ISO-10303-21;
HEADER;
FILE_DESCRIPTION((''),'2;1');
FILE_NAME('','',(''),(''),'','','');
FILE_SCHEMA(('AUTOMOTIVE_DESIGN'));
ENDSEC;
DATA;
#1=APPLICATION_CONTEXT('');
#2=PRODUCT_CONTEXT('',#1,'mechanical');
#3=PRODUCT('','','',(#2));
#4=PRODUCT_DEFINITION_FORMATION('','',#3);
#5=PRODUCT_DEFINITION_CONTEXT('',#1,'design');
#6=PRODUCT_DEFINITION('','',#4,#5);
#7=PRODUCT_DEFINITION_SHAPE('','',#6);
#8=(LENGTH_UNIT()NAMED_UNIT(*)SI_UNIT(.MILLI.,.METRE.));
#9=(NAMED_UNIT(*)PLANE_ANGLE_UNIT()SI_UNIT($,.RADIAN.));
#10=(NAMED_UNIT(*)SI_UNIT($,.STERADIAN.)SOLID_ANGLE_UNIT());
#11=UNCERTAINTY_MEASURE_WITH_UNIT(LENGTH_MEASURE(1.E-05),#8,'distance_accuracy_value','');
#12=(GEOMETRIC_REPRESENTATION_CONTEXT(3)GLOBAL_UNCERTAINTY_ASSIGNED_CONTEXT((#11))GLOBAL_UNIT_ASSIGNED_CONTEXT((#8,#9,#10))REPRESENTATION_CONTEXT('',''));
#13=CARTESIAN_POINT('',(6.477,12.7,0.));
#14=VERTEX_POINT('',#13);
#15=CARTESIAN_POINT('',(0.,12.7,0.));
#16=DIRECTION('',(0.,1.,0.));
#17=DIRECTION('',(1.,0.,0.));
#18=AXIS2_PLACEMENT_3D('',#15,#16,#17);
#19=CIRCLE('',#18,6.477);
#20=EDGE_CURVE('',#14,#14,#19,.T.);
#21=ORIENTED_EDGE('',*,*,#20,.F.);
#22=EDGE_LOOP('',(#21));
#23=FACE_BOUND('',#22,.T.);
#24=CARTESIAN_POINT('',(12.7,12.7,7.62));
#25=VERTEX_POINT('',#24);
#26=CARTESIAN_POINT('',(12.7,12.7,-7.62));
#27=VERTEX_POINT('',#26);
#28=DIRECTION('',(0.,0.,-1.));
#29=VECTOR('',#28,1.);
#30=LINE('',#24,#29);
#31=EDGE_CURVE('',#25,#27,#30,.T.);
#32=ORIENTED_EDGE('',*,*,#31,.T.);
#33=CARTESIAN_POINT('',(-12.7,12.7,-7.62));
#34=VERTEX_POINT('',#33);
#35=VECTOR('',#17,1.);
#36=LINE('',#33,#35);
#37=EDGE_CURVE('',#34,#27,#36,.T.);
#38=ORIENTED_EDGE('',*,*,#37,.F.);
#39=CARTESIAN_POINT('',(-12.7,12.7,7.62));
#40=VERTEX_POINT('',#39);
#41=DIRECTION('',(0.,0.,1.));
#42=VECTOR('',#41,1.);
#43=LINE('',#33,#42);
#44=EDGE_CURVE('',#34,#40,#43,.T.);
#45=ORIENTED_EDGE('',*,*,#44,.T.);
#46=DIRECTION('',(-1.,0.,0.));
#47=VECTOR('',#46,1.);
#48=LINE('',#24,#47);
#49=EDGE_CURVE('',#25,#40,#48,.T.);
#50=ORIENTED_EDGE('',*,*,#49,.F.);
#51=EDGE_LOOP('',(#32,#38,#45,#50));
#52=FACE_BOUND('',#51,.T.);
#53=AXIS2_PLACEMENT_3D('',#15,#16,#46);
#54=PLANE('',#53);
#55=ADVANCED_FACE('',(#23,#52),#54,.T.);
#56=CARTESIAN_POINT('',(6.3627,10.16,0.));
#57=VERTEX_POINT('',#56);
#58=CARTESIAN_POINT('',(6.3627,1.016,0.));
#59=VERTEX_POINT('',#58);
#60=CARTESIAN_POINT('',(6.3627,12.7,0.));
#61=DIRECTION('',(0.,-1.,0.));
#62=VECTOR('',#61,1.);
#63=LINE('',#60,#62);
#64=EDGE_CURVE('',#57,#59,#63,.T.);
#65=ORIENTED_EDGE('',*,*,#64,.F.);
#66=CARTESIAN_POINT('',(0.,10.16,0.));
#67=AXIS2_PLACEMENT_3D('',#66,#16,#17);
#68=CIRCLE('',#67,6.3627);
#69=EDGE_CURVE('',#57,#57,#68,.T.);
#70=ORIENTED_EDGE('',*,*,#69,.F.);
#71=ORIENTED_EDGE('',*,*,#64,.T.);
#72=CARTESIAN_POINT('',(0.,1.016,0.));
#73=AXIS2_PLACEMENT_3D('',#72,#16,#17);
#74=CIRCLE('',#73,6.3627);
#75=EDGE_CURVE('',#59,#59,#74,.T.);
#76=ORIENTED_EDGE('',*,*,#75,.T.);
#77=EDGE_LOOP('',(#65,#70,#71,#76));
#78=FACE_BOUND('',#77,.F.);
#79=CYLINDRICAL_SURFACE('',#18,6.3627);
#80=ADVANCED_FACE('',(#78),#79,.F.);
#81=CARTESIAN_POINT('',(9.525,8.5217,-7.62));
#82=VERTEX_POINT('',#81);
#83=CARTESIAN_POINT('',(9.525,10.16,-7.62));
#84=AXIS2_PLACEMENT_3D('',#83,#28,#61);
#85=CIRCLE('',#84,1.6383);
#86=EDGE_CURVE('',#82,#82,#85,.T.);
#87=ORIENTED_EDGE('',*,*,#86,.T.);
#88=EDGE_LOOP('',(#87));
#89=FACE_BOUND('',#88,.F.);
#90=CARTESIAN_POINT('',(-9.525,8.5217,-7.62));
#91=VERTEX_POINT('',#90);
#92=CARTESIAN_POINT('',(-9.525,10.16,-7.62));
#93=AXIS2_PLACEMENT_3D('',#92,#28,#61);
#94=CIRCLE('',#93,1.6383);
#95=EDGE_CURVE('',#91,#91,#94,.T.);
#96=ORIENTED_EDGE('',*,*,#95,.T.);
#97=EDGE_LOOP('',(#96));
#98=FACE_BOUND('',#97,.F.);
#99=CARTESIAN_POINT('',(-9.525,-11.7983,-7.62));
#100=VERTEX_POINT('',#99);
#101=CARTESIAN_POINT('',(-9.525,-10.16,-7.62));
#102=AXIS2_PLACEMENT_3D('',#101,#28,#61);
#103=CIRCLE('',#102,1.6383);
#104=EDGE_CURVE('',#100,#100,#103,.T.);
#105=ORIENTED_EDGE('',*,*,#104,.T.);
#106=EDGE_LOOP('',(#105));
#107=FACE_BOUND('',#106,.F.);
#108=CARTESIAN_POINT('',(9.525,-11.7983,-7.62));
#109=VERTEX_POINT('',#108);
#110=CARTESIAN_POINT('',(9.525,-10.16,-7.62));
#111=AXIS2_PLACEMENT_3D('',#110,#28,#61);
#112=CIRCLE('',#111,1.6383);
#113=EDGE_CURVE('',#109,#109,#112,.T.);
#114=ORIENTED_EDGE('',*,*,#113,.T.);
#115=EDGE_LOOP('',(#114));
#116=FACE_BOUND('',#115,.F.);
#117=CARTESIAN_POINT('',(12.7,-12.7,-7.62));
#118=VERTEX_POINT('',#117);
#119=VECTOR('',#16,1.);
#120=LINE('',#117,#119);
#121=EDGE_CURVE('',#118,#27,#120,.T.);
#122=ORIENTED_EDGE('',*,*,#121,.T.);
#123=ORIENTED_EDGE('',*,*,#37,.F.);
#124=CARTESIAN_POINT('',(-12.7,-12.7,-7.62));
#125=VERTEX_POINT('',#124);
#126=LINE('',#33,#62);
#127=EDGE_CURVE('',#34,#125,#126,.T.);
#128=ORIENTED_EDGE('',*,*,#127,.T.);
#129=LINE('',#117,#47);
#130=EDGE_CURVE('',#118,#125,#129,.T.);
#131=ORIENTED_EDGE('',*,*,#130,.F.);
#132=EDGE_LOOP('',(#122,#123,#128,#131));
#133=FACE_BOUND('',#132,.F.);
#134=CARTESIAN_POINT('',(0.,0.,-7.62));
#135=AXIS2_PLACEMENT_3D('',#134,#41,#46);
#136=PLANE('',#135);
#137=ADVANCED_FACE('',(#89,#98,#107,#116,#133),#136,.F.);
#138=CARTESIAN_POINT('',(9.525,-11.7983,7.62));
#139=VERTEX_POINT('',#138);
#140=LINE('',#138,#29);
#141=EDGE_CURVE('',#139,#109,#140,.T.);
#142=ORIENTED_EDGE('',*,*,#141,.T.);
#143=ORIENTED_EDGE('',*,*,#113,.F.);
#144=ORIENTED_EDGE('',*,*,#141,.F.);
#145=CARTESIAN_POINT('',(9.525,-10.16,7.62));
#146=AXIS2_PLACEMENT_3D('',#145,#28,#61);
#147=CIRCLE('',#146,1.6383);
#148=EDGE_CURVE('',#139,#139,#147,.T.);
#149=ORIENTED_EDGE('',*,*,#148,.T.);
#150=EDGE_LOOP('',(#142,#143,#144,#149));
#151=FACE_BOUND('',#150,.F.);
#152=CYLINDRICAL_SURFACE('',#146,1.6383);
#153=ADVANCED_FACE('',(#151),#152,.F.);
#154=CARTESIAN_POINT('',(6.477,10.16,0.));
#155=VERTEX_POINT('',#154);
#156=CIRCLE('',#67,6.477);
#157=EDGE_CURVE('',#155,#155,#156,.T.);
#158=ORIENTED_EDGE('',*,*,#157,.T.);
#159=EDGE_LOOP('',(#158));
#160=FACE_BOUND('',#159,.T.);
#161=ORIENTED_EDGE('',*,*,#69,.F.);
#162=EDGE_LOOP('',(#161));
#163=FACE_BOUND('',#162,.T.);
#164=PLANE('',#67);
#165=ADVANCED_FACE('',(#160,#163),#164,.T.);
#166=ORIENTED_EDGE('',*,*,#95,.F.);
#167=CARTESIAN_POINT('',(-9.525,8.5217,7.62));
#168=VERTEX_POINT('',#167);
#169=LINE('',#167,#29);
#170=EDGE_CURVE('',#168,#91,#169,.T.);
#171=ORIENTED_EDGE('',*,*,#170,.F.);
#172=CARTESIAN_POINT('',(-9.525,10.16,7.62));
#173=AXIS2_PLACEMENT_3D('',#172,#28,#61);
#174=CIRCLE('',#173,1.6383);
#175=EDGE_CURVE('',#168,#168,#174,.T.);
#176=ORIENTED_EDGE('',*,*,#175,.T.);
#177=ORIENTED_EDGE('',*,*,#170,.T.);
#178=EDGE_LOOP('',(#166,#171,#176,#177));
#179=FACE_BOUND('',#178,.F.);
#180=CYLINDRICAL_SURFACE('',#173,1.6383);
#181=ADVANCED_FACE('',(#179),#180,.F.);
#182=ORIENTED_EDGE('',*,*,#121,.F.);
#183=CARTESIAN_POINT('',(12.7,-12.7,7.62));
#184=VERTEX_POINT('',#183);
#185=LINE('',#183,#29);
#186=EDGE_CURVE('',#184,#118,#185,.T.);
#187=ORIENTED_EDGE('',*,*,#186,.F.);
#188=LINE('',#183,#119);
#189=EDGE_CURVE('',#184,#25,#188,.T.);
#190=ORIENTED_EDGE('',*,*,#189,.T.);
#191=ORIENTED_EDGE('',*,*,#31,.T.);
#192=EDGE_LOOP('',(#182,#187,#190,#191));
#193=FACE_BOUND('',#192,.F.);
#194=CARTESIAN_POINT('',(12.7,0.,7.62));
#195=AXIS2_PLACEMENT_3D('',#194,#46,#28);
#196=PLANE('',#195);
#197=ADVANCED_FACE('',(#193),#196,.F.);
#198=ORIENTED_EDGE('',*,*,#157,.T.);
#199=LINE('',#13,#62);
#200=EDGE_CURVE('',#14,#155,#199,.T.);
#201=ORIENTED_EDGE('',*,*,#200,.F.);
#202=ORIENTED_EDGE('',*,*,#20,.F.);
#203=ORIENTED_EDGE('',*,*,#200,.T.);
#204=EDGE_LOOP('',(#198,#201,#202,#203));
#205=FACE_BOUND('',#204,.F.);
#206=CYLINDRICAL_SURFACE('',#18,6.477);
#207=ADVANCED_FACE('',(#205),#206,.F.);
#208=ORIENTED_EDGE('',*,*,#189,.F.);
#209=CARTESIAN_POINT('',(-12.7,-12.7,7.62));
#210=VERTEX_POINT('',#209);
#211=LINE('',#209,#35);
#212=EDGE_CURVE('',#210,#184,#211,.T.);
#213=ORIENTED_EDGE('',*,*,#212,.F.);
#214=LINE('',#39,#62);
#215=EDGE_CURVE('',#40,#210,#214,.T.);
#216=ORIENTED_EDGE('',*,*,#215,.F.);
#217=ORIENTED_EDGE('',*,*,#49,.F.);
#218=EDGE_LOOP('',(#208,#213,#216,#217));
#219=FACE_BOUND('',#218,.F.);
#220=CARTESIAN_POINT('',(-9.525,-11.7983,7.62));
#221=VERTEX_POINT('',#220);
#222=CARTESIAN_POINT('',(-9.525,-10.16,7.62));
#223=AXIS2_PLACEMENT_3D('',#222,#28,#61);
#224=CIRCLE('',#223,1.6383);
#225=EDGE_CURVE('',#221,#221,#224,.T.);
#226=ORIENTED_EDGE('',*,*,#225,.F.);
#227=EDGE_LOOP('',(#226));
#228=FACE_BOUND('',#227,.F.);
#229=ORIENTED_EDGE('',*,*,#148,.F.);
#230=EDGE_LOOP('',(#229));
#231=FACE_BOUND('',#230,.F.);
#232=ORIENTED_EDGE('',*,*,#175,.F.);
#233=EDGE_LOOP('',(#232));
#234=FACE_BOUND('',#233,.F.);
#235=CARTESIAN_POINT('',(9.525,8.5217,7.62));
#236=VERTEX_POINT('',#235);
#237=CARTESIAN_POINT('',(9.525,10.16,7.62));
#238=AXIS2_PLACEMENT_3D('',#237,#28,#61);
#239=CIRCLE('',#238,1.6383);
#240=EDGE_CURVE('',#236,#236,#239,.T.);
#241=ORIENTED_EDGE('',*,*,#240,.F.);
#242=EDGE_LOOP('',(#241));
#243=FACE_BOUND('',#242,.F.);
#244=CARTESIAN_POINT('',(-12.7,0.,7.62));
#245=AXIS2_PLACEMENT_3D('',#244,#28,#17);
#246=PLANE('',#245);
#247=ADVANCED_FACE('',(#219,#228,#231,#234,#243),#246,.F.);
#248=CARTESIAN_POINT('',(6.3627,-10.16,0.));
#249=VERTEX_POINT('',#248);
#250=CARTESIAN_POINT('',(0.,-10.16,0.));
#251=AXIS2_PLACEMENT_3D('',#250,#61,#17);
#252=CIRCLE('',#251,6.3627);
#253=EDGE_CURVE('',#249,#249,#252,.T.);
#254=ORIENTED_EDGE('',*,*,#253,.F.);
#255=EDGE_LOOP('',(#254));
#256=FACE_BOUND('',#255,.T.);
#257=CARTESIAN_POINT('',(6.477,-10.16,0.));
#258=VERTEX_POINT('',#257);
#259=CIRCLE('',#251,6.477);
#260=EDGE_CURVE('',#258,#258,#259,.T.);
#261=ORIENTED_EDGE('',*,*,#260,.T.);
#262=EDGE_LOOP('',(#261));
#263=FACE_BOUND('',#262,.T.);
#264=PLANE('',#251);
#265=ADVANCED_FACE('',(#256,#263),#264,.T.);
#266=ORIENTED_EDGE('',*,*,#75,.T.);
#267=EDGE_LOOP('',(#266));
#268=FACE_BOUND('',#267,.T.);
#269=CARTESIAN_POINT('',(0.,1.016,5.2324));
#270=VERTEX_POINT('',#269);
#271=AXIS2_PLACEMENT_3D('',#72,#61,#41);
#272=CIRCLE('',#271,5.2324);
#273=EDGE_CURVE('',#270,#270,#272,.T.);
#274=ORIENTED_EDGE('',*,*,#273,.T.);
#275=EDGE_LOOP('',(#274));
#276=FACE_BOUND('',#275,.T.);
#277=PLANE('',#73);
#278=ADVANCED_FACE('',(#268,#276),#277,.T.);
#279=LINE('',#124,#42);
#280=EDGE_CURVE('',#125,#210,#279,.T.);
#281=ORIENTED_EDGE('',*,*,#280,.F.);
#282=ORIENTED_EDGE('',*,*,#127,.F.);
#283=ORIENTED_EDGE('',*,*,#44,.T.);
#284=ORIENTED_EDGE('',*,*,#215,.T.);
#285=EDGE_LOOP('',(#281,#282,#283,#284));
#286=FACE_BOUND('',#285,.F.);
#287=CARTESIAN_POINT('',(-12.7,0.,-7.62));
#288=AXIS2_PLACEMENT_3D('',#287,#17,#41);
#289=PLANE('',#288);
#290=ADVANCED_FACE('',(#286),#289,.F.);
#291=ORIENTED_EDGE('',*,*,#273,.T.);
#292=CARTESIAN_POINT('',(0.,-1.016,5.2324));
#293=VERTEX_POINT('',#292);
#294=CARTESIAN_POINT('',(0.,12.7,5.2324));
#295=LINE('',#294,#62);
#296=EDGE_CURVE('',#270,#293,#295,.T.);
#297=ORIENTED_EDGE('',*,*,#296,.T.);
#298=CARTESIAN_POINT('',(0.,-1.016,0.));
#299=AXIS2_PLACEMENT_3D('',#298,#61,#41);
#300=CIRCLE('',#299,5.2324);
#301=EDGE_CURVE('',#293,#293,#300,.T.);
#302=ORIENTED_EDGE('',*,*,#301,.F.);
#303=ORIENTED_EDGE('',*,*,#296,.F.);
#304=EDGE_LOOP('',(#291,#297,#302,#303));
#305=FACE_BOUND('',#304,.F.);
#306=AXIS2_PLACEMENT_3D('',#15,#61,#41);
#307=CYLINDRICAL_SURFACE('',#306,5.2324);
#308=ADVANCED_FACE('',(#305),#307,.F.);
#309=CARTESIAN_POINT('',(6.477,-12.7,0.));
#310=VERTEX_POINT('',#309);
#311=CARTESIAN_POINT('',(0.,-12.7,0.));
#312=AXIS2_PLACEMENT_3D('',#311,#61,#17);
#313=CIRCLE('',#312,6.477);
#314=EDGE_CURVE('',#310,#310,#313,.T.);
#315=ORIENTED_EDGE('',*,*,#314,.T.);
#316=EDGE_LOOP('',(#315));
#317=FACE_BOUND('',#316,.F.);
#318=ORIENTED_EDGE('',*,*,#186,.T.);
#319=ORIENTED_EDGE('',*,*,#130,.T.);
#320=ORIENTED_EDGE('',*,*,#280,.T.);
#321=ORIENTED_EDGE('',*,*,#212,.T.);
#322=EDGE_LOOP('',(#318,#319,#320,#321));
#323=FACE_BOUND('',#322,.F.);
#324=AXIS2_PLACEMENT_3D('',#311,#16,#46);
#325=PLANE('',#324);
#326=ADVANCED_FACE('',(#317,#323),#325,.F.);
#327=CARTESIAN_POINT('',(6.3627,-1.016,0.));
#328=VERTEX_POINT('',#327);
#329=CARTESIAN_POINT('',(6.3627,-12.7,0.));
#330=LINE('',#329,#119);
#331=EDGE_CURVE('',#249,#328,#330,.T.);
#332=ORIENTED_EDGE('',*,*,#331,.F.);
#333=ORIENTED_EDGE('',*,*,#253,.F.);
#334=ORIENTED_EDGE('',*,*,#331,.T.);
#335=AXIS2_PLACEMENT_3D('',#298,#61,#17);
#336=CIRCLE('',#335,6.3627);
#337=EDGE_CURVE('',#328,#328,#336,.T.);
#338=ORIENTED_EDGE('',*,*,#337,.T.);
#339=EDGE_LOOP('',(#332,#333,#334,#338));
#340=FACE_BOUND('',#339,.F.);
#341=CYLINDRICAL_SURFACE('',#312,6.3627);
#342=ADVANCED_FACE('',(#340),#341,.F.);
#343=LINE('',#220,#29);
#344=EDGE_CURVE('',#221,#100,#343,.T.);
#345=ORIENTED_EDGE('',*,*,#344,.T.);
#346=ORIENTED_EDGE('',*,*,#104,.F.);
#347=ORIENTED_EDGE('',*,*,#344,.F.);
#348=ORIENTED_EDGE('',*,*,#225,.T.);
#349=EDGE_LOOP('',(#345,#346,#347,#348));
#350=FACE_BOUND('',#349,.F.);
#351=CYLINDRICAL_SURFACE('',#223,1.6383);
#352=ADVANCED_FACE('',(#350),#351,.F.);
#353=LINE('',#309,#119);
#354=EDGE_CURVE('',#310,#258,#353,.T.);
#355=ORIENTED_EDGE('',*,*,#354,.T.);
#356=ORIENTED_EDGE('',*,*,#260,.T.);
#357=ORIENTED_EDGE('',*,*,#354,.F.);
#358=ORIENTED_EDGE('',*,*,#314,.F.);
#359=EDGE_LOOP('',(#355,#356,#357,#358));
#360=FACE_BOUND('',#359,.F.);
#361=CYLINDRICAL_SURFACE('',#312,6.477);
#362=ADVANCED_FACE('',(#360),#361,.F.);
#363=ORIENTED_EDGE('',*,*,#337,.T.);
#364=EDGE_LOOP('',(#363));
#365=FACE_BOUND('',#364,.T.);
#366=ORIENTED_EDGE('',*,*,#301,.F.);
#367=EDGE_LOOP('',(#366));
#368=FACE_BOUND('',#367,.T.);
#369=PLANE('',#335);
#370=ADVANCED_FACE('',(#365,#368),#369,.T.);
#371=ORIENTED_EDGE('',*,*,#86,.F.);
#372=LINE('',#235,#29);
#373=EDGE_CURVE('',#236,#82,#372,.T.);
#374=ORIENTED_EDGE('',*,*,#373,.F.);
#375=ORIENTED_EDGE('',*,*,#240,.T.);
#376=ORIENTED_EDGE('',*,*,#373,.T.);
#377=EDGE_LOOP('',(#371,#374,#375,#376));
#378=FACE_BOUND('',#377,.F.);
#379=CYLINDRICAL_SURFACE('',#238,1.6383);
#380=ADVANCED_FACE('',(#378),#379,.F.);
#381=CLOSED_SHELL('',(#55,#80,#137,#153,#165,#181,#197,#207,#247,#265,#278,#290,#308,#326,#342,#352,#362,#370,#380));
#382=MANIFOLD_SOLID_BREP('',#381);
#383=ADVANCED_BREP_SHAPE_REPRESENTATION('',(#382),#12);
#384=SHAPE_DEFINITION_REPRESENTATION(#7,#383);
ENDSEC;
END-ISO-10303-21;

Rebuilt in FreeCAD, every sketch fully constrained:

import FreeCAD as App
import Part
import Sketcher

V = App.Vector
Q = App.Units.Quantity

doc = App.newDocument("Part")
body = doc.addObject("PartDesign::Body", "Body")

# Sketch on XZ plane
sketch1 = body.newObject("Sketcher::SketchObject", "Sketch")
sketch1.AttachmentSupport = (doc.getObject("XZ_Plane"), [""])
sketch1.MapMode = "FlatFace"
sketch1.addGeometry([
    Part.LineSegment(V(-13, -8, 0), V(-13, 8, 0)),
    Part.LineSegment(V(-13, 8, 0), V(13, 8, 0)),
    Part.LineSegment(V(13, 8, 0), V(13, -8, 0)),
    Part.LineSegment(V(13, -8, 0), V(-13, -8, 0)),
], False)
sketch1.addConstraint([
    Sketcher.Constraint("Coincident", 0, 2, 1, 1),
    Sketcher.Constraint("Coincident", 1, 2, 2, 1),
    Sketcher.Constraint("Coincident", 2, 2, 3, 1),
    Sketcher.Constraint("Coincident", 3, 2, 0, 1),
    Sketcher.Constraint("Vertical", 0),
    Sketcher.Constraint("Horizontal", 1),
    Sketcher.Constraint("Vertical", 2),
    Sketcher.Constraint("Horizontal", 3),
    Sketcher.Constraint("Symmetric", 0, 2, 2, 2, -1, 1),
    Sketcher.Constraint("DistanceX", 1, 1, 1, 2, Q("1 in")),
    Sketcher.Constraint("DistanceY", 0, 1, 0, 2, Q("0.6 in")),
])
pad1 = body.newObject("PartDesign::Pad", "Pad")
pad1.Profile = sketch1
pad1.Length = Q("1 in")
pad1.Midplane = True

# Sketch on XZ plane
sketch2 = body.newObject("Sketcher::SketchObject", "Sketch001")
sketch2.AttachmentSupport = (doc.getObject("XZ_Plane"), [""])
sketch2.MapMode = "FlatFace"
sketch2.AttachmentOffset = App.Placement(V(0, 0, -0.5 * 25.4), App.Rotation())
sketch2.addGeometry(Part.Circle(V(0, 0, 0), V(0, 0, 1), 5), False)
sketch2.addConstraint([
    Sketcher.Constraint("Coincident", 0, 3, -1, 1),
    Sketcher.Constraint("Diameter", 0, Q("0.412 in")),
])
doc.recompute()
hole = body.newObject("PartDesign::Hole", "Hole")
hole.Profile = sketch2
hole.ThreadType = "None"
hole.Diameter = Q("0.412 in")
hole.DepthType = "Dimension"
hole.Depth = Q("0.976 in")
hole.DrillPoint = "Angled"
hole.DrillPointAngle = 118
hole.Reversed = True

# Sketch on XZ plane
sketch3 = body.newObject("Sketcher::SketchObject", "Sketch002")
sketch3.AttachmentSupport = (doc.getObject("XZ_Plane"), [""])
sketch3.MapMode = "FlatFace"
sketch3.AttachmentOffset = App.Placement(V(0, 0, -0.5 * 25.4), App.Rotation())
sketch3.addGeometry(Part.Circle(V(0, 0, 0), V(0, 0, 1), 6), False)
sketch3.addConstraint([
    Sketcher.Constraint("Coincident", 0, 3, -1, 1),
    Sketcher.Constraint("Diameter", 0, Q("0.501 in")),
])
pocket1 = body.newObject("PartDesign::Pocket", "Pocket")
pocket1.Profile = sketch3
pocket1.Length = Q("0.46 in")
pocket1.Reversed = True

# Sketch on XZ plane
sketch4 = body.newObject("Sketcher::SketchObject", "Sketch003")
sketch4.AttachmentSupport = (doc.getObject("XZ_Plane"), [""])
sketch4.MapMode = "FlatFace"
sketch4.AttachmentOffset = App.Placement(V(0, 0, 0.5 * 25.4), App.Rotation())
sketch4.addGeometry(Part.Circle(V(0, 0, 0), V(0, 0, 1), 6), False)
sketch4.addConstraint([
    Sketcher.Constraint("Coincident", 0, 3, -1, 1),
    Sketcher.Constraint("Diameter", 0, Q("0.501 in")),
])
pocket2 = body.newObject("PartDesign::Pocket", "Pocket001")
pocket2.Profile = sketch4
pocket2.Length = Q("0.46 in")

# Sketch on XZ plane
sketch5 = body.newObject("Sketcher::SketchObject", "Sketch004")
sketch5.AttachmentSupport = (doc.getObject("XZ_Plane"), [""])
sketch5.MapMode = "FlatFace"
sketch5.AttachmentOffset = App.Placement(V(0, 0, -0.5 * 25.4), App.Rotation())
sketch5.addGeometry(Part.Circle(V(0, 0, 0), V(0, 0, 1), 6), False)
sketch5.addConstraint([
    Sketcher.Constraint("Coincident", 0, 3, -1, 1),
    Sketcher.Constraint("Diameter", 0, Q("0.51 in")),
])
pocket3 = body.newObject("PartDesign::Pocket", "Pocket002")
pocket3.Profile = sketch5
pocket3.Length = Q("0.1 in")
pocket3.Reversed = True

# Sketch on XZ plane
sketch6 = body.newObject("Sketcher::SketchObject", "Sketch005")
sketch6.AttachmentSupport = (doc.getObject("XZ_Plane"), [""])
sketch6.MapMode = "FlatFace"
sketch6.AttachmentOffset = App.Placement(V(0, 0, 0.5 * 25.4), App.Rotation())
sketch6.addGeometry(Part.Circle(V(0, 0, 0), V(0, 0, 1), 6), False)
sketch6.addConstraint([
    Sketcher.Constraint("Coincident", 0, 3, -1, 1),
    Sketcher.Constraint("Diameter", 0, Q("0.51 in")),
])
pocket4 = body.newObject("PartDesign::Pocket", "Pocket003")
pocket4.Profile = sketch6
pocket4.Length = Q("0.1 in")

# Sketch on XY plane
sketch7 = body.newObject("Sketcher::SketchObject", "Sketch006")
sketch7.AttachmentSupport = (doc.getObject("XY_Plane"), [""])
sketch7.MapMode = "FlatFace"
sketch7.AttachmentOffset = App.Placement(V(0, 0, 0.3 * 25.4), App.Rotation())
sketch7.addGeometry([
    Part.Circle(V(9.5, 10.2, 0), V(0, 0, 1), 1.6),
    Part.Circle(V(9.5, -10.2, 0), V(0, 0, 1), 1.6),
    Part.Circle(V(-9.5, -10.2, 0), V(0, 0, 1), 1.6),
    Part.Circle(V(-9.5, 10.2, 0), V(0, 0, 1), 1.6),
], False)
sketch7.addConstraint([
    Sketcher.Constraint("Equal", 0, 1),
    Sketcher.Constraint("Equal", 1, 2),
    Sketcher.Constraint("Equal", 2, 3),
    Sketcher.Constraint("Symmetric", 0, 3, 2, 3, -1, 1),
    Sketcher.Constraint("Symmetric", 1, 3, 3, 3, -1, 1),
    Sketcher.Constraint("Symmetric", 1, 3, 2, 3, -2),
    Sketcher.Constraint("Diameter", 0, Q("0.129 in")),
    Sketcher.Constraint("DistanceY", -1, 1, 0, 3, Q("0.4 in")),
    Sketcher.Constraint("DistanceX", 2, 3, 1, 3, Q("0.75 in")),
])
doc.recompute()
hole2 = body.newObject("PartDesign::Hole", "Hole001")
hole2.Profile = sketch7
hole2.ThreadType = "None"
hole2.Diameter = Q("0.129 in")
hole2.DepthType = "ThroughAll"

doc.recompute()
